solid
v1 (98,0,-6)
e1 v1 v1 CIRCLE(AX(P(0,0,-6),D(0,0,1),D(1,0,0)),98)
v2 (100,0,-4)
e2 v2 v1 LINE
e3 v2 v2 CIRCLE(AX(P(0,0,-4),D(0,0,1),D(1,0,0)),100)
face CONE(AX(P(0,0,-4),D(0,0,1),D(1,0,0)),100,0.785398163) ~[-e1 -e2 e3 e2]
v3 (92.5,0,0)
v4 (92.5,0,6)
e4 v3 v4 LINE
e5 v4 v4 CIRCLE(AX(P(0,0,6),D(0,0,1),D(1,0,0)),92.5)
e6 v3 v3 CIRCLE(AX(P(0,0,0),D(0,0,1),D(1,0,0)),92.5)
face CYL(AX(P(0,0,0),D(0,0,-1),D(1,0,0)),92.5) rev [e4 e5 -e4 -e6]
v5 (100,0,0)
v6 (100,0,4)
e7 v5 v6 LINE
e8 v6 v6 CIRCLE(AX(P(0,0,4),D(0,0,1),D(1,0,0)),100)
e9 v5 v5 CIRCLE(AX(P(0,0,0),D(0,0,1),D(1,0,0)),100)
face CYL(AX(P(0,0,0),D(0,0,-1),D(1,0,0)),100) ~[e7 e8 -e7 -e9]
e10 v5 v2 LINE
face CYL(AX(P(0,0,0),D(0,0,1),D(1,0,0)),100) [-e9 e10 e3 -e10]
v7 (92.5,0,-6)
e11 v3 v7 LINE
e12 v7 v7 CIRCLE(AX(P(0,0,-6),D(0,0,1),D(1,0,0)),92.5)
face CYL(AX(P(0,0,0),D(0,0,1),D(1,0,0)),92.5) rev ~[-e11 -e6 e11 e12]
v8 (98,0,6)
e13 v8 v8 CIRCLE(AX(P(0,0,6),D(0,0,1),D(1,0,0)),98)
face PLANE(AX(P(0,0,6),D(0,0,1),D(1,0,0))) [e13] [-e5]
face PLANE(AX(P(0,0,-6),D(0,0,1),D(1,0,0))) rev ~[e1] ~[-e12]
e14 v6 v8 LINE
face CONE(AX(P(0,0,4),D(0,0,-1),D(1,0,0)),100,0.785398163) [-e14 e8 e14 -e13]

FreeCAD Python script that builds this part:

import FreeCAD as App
import Part
import Sketcher
from FreeCAD import Vector


def edges_at(feature, points):
    """Names of the edges that pass closest to the given points."""
    edges = feature.Shape.Edges
    near = lambda p: min(range(len(edges)), key=lambda i: edges[i].distToShape(Part.Vertex(*p))[0])
    return sorted({f"Edge{near(p) + 1}" for p in points})

doc = App.newDocument("Part")
body = doc.addObject("PartDesign::Body", "Body")

# Sketch on XY plane
sketch1 = body.newObject("Sketcher::SketchObject", "Sketch")
sketch1.AttachmentSupport = (doc.getObject("XY_Plane"), [""])
sketch1.MapMode = "FlatFace"
sketch1.addGeometry([
    Part.Circle(Vector(0, 0, 0), Vector(0, 0, 1), 100),
    Part.Circle(Vector(0, 0, 0), Vector(0, 0, 1), 92.5),
], False)
sketch1.addConstraint([
    Sketcher.Constraint("Coincident", 0, 3, -1, 1),
    Sketcher.Constraint("Coincident", 1, 3, -1, 1),
    Sketcher.Constraint("Diameter", 0, 200.0),
    Sketcher.Constraint("Diameter", 1, 185.0),
])
pad1 = body.newObject("PartDesign::Pad", "Pad")
pad1.Profile = sketch1
pad1.Length = 12
pad1.Midplane = True
doc.recompute()

chamfer = body.newObject("PartDesign::Chamfer", "Chamfer")
chamfer.Base = (pad1, edges_at(pad1, [(-100, 0, 6), (-100, 0, -6)]))
chamfer.Size = 2

doc.recompute()
